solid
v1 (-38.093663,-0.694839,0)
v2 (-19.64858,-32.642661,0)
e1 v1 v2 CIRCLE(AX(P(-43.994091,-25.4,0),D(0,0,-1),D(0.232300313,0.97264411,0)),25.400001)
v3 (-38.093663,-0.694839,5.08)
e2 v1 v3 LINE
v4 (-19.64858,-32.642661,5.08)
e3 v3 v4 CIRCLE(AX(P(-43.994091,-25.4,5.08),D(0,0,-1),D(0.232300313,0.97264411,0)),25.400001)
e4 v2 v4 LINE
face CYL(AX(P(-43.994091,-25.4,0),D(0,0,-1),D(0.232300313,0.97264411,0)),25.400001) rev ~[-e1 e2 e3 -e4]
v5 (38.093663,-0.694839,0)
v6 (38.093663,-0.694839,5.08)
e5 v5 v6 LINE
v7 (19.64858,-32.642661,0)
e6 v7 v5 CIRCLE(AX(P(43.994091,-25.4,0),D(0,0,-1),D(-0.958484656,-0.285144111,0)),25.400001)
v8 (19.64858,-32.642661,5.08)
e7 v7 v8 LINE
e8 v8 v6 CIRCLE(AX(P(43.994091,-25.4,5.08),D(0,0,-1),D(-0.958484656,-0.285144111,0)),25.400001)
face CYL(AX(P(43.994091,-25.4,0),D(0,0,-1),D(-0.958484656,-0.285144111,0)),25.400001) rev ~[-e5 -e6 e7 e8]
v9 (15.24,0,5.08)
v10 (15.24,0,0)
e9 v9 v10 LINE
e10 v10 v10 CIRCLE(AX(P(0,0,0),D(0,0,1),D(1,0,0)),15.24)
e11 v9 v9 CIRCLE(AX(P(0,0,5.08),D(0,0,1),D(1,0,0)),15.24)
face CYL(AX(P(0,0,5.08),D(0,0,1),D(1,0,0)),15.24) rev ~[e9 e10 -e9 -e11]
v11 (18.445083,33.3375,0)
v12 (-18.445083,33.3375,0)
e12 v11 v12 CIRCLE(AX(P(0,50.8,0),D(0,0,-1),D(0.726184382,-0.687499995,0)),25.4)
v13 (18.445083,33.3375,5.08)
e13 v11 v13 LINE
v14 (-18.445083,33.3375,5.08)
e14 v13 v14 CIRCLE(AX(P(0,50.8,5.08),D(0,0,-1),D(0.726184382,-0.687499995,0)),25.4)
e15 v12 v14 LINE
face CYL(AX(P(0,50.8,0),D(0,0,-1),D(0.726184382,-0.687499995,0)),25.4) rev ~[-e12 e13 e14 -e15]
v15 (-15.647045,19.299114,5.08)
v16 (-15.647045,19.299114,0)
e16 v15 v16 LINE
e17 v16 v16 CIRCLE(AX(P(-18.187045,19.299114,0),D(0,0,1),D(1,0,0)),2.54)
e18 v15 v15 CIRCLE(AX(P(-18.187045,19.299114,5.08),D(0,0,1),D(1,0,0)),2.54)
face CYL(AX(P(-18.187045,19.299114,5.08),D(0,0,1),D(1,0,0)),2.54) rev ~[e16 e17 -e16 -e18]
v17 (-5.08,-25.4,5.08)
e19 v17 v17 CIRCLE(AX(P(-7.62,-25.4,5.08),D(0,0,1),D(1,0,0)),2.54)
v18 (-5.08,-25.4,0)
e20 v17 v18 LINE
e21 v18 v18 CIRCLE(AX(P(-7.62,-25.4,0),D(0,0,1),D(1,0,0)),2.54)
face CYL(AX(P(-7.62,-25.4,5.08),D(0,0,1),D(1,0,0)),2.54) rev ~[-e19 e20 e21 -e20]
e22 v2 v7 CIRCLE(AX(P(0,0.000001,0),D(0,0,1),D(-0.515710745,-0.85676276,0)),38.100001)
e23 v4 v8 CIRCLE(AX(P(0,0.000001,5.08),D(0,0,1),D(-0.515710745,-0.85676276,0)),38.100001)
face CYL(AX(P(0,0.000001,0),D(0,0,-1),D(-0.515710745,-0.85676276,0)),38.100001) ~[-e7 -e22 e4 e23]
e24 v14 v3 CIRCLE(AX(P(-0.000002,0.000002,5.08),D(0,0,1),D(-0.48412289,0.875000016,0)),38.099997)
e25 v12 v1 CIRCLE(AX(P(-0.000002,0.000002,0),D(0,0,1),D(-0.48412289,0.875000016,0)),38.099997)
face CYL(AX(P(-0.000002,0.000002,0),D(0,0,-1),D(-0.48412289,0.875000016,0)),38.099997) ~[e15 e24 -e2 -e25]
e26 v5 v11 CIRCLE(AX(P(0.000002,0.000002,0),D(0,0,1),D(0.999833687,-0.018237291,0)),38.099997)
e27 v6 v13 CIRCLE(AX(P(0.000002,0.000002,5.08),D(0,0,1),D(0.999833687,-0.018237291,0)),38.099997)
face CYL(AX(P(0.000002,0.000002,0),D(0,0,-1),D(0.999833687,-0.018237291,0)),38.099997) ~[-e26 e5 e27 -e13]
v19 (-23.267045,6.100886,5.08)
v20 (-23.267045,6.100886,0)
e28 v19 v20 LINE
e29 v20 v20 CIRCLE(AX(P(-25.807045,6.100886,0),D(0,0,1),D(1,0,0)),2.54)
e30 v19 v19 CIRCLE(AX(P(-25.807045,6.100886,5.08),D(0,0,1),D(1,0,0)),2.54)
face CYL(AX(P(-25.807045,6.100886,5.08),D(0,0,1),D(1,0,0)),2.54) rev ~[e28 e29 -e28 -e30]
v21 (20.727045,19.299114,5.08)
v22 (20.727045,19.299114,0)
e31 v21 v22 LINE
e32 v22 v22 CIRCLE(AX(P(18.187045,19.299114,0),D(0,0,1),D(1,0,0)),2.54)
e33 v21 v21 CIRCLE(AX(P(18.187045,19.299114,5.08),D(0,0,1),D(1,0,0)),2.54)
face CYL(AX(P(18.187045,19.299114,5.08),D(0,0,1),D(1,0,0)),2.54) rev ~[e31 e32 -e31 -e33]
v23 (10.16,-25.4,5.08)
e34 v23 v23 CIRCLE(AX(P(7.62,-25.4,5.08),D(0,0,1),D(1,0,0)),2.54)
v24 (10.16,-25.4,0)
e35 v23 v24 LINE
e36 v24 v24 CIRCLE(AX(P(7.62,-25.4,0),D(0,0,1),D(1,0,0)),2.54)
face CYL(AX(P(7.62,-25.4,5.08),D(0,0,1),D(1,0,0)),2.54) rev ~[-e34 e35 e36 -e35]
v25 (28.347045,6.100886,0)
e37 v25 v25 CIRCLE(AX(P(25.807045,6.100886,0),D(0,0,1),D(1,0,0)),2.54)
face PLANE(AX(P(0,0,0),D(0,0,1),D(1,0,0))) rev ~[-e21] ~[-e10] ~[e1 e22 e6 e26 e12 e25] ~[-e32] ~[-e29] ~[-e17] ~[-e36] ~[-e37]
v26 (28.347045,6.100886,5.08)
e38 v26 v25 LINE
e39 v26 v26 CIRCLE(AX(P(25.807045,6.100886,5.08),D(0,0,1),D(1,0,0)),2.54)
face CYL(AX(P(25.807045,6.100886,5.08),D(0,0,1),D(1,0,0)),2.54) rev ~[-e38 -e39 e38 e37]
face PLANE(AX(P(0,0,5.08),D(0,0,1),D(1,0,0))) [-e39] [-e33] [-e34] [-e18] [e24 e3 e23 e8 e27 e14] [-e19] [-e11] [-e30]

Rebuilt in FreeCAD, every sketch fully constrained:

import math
import FreeCAD as App
import Part
import Sketcher
from FreeCAD import Vector
Q = App.Units.Quantity

doc = App.newDocument("Part")
body = doc.addObject("PartDesign::Body", "Body")

sketch1 = body.newObject("Sketcher::SketchObject", "Sketch")
sketch1.AttachmentSupport = (doc.getObject("XY_Plane"), [""])
sketch1.MapMode = "FlatFace"
sketch1.addGeometry([
    Part.ArcOfCircle(Part.Circle(Vector(0, 50.8, 0), Vector(0, 0, 1), 25.4), math.radians(-136.567464), math.radians(-43.432536)),
    Part.ArcOfCircle(Part.Circle(Vector(-0.000002, 0.000002, 0), Vector(0, 0, 1), 38.099997), math.radians(118.955022), math.radians(181.044978)),
    Part.ArcOfCircle(Part.Circle(Vector(-43.994091, -25.4, 0), Vector(0, 0, 1), 25.400001), math.radians(-16.567463), math.radians(76.567461)),
    Part.ArcOfCircle(Part.Circle(Vector(0, 0.000001, 0), Vector(0, 0, 1), 38.100001), math.radians(-121.044974), math.radians(-58.955026)),
    Part.ArcOfCircle(Part.Circle(Vector(43.994091, -25.4, 0), Vector(0, 0, 1), 25.400001), math.radians(103.432539), math.radians(196.567463)),
    Part.ArcOfCircle(Part.Circle(Vector(0.000002, 0.000002, 0), Vector(0, 0, 1), 38.099997), math.radians(-1.044978), math.radians(61.044978)),
], False)
sketch1.addConstraint([
    Sketcher.Constraint("Coincident", 0, 1, 1, 1),
    Sketcher.Constraint("Coincident", 1, 2, 2, 2),
    Sketcher.Constraint("Coincident", 2, 1, 3, 1),
    Sketcher.Constraint("Coincident", 3, 2, 4, 2),
    Sketcher.Constraint("Coincident", 4, 1, 5, 1),
    Sketcher.Constraint("Coincident", 5, 2, 0, 2),
    Sketcher.Constraint("Coincident", 1, 3, -1, 1),
    Sketcher.Constraint("Coincident", 3, 3, -1, 1),
    Sketcher.Constraint("Coincident", 5, 3, -1, 1),
    Sketcher.Constraint("Equal", 0, 2),
    Sketcher.Constraint("Equal", 2, 4),
    Sketcher.Constraint("Equal", 1, 5),
    Sketcher.Constraint("Symmetric", 2, 3, 4, 3, -2),
    Sketcher.Constraint("PointOnObject", 0, 3, -2),
    Sketcher.Constraint("Radius", 0, Q("1 in")),
    Sketcher.Constraint("Radius", 1, Q("1.4999999 in")),
    Sketcher.Constraint("Radius", 3, Q("1.5 in")),
    Sketcher.Constraint("DistanceY", -1, 1, 0, 3, Q("2 in")),
    Sketcher.Constraint("DistanceY", 2, 3, -1, 1, Q("1 in")),
    Sketcher.Constraint("DistanceX", 2, 3, -1, 1, Q("43.994091 mm")),
])
pad1 = body.newObject("PartDesign::Pad", "Pad")
pad1.Profile = sketch1
pad1.Length = Q("0.2 in")

sketch2 = body.newObject("Sketcher::SketchObject", "Sketch001")
sketch2.AttachmentSupport = (doc.getObject("XY_Plane"), [""])
sketch2.MapMode = "FlatFace"
sketch2.AttachmentOffset = App.Placement(Vector(0, 0, 0.2 * 25.4), App.Rotation())
sketch2.addGeometry(Part.Circle(Vector(0, 0, 0), Vector(0, 0, 1), 15.24), False)
sketch2.addConstraint([
    Sketcher.Constraint("Coincident", 0, 3, -1, 1),
    Sketcher.Constraint("Diameter", 0, Q("1.2 in")),
])
pocket1 = body.newObject("PartDesign::Pocket", "Pocket")
pocket1.Profile = sketch2
pocket1.Length = Q("1 in")

sketch3 = body.newObject("Sketcher::SketchObject", "Sketch002")
sketch3.AttachmentSupport = (doc.getObject("XY_Plane"), [""])
sketch3.MapMode = "FlatFace"
sketch3.AttachmentOffset = App.Placement(Vector(0, 0, 0.2 * 25.4), App.Rotation())
sketch3.addGeometry([
    Part.Circle(Vector(7.62, -25.4, 0), Vector(0, 0, 1), 2.54),
    Part.Circle(Vector(-7.62, -25.4, 0), Vector(0, 0, 1), 2.54),
    Part.Circle(Vector(-25.807045, 6.100886, 0), Vector(0, 0, 1), 2.54),
    Part.Circle(Vector(-18.187045, 19.299114, 0), Vector(0, 0, 1), 2.54),
    Part.Circle(Vector(18.187045, 19.299114, 0), Vector(0, 0, 1), 2.54),
    Part.Circle(Vector(25.807045, 6.100886, 0), Vector(0, 0, 1), 2.54),
], False)
sketch3.addConstraint([
    Sketcher.Constraint("Equal", 0, 1),
    Sketcher.Constraint("Equal", 1, 2),
    Sketcher.Constraint("Equal", 2, 3),
    Sketcher.Constraint("Equal", 3, 4),
    Sketcher.Constraint("Equal", 4, 5),
    Sketcher.Constraint("Symmetric", 0, 3, 1, 3, -2),
    Sketcher.Constraint("Symmetric", 3, 3, 4, 3, -2),
    Sketcher.Constraint("Symmetric", 2, 3, 5, 3, -2),
    Sketcher.Constraint("Diameter", 0, Q("0.2 in")),
    Sketcher.Constraint("DistanceY", 0, 3, -1, 1, Q("1 in")),
    Sketcher.Constraint("DistanceX", -1, 1, 0, 3, Q("0.3 in")),
    Sketcher.Constraint("DistanceX", 2, 3, 3, 3, Q("0.3 in")),
    Sketcher.Constraint("DistanceX", 3, 3, 4, 3, Q("36.37409 mm")),
    Sketcher.Constraint("DistanceY", -1, 1, 2, 3, Q("6.100886 mm")),
    Sketcher.Constraint("DistanceY", -1, 1, 3, 3, Q("19.299114 mm")),
])
pocket2 = body.newObject("PartDesign::Pocket", "Pocket001")
pocket2.Profile = sketch3
pocket2.Length = Q("1 in")

doc.recompute()
